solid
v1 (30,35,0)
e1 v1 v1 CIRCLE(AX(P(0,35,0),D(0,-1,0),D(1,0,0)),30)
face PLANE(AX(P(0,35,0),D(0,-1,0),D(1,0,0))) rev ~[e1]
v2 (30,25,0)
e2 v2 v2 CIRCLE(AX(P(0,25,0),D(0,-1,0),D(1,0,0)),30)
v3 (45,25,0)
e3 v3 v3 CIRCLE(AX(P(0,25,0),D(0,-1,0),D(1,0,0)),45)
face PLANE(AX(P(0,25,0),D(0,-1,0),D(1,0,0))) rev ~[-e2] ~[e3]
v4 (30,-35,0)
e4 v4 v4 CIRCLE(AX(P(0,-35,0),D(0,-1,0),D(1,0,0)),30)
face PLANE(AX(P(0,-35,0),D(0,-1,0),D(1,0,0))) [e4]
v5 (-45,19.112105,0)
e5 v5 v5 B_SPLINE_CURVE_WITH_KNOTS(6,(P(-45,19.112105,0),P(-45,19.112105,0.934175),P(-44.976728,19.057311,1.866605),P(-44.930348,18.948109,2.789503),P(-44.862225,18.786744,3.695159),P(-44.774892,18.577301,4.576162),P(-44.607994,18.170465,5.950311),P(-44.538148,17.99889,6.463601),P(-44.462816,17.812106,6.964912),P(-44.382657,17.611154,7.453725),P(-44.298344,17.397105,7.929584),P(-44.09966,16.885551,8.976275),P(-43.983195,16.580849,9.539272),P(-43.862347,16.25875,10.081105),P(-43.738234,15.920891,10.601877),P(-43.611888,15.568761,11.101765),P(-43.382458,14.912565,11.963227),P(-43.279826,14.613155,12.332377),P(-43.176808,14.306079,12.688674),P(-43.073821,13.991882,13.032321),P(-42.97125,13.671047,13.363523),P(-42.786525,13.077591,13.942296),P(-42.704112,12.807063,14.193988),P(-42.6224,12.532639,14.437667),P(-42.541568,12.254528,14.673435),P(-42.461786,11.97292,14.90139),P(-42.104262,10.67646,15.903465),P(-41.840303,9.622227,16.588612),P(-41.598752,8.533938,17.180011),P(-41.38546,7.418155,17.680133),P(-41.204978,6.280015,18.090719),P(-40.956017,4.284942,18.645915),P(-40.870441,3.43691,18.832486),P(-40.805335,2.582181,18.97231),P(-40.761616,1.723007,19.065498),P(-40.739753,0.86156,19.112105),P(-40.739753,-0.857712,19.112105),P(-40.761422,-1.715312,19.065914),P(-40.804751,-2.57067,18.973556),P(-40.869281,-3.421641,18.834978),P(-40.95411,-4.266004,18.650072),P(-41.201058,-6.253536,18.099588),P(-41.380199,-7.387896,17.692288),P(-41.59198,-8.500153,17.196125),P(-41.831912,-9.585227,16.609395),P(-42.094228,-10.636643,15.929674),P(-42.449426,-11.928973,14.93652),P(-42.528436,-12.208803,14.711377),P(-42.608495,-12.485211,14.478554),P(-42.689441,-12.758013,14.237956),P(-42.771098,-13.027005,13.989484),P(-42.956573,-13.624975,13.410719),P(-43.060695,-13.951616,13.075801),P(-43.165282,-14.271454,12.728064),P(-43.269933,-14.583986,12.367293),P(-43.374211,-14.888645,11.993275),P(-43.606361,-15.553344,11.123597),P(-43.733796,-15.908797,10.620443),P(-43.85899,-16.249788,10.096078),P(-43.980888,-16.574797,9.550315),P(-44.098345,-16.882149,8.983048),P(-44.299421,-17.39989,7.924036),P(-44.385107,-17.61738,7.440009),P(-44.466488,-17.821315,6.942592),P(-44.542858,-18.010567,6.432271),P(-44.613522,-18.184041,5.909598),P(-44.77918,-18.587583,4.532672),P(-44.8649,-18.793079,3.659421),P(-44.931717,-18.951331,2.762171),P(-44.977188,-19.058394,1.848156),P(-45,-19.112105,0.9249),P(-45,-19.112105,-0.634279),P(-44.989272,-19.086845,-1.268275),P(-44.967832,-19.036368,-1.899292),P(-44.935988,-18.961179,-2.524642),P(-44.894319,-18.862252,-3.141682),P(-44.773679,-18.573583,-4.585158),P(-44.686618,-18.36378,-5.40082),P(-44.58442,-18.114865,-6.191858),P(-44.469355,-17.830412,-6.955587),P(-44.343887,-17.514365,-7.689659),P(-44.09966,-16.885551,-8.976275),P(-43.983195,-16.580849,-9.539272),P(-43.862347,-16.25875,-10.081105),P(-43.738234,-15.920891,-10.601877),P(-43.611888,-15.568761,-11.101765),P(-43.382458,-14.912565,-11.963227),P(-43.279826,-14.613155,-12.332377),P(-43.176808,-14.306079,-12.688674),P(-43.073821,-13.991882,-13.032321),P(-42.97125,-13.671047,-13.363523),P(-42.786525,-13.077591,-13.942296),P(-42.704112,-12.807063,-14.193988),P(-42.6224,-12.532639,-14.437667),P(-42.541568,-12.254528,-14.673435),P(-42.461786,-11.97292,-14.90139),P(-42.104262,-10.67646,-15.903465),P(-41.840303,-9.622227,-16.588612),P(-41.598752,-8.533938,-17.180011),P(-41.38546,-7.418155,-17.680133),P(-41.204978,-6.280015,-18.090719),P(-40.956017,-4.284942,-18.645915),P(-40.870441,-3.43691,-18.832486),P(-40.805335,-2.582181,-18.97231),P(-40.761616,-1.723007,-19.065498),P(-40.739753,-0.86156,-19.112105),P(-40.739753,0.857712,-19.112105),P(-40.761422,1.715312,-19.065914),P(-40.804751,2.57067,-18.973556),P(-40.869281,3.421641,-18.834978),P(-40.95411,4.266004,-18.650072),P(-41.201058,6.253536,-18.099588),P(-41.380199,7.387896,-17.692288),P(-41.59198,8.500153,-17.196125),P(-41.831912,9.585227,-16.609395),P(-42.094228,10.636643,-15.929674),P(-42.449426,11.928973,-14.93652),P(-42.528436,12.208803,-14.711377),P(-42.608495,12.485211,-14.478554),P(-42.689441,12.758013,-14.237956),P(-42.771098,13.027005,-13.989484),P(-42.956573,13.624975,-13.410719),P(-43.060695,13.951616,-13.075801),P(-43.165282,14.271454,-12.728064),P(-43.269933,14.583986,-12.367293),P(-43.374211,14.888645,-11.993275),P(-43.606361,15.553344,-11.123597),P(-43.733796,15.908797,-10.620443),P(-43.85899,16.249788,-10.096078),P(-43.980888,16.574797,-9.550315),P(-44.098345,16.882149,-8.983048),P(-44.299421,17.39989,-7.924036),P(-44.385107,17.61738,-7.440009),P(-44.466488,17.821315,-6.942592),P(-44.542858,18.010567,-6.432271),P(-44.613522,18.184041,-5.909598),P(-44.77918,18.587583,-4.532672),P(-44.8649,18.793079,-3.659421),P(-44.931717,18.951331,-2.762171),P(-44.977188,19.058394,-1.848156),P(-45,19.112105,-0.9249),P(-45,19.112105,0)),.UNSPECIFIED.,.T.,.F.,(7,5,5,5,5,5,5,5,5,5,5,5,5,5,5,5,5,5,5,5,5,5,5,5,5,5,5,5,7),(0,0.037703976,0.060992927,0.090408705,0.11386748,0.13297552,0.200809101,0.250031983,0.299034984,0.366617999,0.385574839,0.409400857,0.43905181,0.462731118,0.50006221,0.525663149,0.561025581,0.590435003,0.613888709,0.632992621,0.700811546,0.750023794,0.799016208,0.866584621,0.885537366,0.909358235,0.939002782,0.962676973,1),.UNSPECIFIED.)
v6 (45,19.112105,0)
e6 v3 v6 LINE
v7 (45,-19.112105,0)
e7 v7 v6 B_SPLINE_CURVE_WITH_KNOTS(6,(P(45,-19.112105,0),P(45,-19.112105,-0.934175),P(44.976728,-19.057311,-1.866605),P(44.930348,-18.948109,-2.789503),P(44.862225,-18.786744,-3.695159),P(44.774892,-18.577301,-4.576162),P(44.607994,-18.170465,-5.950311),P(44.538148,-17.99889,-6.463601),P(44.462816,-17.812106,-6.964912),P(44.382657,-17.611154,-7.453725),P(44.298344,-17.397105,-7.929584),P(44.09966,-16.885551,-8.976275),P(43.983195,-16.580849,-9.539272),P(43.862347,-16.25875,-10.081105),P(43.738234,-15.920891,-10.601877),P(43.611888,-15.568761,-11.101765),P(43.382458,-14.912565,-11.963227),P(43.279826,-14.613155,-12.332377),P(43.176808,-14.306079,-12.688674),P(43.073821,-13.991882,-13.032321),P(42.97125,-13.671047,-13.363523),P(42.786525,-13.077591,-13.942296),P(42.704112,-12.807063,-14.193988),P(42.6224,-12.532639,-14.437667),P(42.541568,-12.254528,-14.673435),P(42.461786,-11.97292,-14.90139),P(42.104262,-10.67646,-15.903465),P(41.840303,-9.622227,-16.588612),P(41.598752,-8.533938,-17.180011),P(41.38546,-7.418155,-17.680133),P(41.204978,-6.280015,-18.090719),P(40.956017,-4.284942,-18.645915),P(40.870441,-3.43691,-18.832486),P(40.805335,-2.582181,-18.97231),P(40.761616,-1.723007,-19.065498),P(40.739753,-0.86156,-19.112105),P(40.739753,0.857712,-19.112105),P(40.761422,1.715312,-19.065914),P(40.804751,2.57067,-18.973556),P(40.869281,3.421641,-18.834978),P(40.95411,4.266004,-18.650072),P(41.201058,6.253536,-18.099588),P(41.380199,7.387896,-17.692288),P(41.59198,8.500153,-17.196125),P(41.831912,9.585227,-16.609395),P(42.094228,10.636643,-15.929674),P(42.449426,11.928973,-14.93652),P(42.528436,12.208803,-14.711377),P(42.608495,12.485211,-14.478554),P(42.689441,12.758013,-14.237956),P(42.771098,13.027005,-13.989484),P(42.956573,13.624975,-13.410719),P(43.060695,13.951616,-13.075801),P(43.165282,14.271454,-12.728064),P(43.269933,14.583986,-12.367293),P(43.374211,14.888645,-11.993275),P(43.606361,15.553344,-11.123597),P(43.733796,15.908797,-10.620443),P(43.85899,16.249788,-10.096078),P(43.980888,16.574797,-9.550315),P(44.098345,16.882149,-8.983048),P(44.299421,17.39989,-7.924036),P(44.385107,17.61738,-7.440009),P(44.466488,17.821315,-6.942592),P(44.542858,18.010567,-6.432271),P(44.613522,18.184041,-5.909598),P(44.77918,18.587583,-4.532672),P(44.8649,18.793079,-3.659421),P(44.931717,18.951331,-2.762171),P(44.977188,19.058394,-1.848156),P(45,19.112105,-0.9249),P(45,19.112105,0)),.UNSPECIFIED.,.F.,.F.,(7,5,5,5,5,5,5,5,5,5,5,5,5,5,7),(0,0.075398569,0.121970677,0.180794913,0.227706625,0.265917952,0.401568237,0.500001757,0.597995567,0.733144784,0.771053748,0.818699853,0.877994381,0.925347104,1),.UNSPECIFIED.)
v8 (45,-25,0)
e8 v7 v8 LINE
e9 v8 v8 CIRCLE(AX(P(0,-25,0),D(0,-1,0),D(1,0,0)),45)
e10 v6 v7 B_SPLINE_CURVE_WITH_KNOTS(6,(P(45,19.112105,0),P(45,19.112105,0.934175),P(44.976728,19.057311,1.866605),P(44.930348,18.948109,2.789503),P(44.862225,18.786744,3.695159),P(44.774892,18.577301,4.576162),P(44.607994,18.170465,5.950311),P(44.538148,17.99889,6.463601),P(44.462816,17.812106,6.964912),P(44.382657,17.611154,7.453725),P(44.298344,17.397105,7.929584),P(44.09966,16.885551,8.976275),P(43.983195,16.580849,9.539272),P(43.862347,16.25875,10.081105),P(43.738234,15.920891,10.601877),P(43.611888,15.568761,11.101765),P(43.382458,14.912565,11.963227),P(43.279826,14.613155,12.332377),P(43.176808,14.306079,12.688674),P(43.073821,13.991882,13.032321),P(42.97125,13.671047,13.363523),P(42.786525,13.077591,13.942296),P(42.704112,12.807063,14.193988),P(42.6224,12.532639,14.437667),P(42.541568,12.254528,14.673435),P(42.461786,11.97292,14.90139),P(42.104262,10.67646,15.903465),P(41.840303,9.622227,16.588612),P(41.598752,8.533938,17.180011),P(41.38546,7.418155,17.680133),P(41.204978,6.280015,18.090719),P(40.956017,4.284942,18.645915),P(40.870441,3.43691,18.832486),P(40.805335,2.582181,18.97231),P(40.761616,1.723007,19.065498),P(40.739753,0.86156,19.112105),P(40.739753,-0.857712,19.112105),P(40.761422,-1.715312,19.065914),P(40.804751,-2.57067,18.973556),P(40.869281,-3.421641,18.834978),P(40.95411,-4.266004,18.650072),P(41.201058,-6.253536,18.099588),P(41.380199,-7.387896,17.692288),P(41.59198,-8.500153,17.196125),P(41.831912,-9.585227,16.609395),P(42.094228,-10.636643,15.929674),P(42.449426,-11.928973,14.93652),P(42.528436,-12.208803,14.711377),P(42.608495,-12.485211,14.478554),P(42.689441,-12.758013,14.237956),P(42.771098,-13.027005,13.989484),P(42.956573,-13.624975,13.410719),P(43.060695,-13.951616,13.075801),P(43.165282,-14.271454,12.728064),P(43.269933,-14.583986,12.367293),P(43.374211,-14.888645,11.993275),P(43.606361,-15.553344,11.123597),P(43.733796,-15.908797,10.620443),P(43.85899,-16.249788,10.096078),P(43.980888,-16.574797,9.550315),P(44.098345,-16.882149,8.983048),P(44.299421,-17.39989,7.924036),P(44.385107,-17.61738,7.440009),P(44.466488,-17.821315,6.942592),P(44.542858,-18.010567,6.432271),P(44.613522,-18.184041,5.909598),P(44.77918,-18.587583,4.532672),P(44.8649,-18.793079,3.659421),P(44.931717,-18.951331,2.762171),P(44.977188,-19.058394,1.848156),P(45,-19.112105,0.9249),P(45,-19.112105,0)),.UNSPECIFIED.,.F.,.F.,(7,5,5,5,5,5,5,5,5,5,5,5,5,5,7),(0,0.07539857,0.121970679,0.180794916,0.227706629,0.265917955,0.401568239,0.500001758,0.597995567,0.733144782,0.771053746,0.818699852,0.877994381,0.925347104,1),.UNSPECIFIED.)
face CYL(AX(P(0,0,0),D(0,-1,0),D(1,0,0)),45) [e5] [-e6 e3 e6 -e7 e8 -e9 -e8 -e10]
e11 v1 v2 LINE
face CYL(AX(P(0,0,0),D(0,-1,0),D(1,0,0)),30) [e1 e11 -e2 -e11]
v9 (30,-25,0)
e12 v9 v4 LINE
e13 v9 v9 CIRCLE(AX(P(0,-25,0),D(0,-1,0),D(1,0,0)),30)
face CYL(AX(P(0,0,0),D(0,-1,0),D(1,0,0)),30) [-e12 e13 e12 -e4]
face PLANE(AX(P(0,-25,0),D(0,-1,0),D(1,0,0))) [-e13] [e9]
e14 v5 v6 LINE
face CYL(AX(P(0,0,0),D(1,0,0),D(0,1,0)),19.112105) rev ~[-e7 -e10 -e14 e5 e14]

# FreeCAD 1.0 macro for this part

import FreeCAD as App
import Part
import Sketcher
from FreeCAD import Vector
Q = App.Units.Quantity

doc = App.newDocument("Part")
params = doc.addObject("Spreadsheet::Sheet", "Params")
for row, (alias, value) in enumerate([
    ("sketch1_diameter", "60 mm"),
    ("pad1_length", "70 mm"),
    ("sketch2_diameter", "90 mm"),
    ("sketch2_diameter2", "60 mm"),
    ("pad2_length", "50 mm"),
    ("pocket1_length", "90 mm"),
], start=1):
    params.set(f"A{row}", alias)
    params.set(f"B{row}", "=" + value)
    params.setAlias(f"B{row}", alias)

body = doc.addObject("PartDesign::Body", "Body")

# Sketch on XZ plane
sketch1 = doc.addObject("Sketcher::SketchObject", "Sketch")
body.addObject(sketch1)
sketch1.AttachmentSupport = (doc.XZ_Plane, [""])
sketch1.MapMode = "FlatFace"
sketch1.addGeometry(Part.Circle(Vector(0, 0, 0), Vector(0, 0, 1), 30), False)
sketch1.addConstraint(Sketcher.Constraint("Coincident", 0, 3, -1, 1))
sketch1.addConstraint(Sketcher.Constraint("Diameter", 0, Q("60 mm")))
sketch1.setExpression("Constraints[1]", "Params.sketch1_diameter")
pad1 = doc.addObject("PartDesign::Pad", "Pad")
body.addObject(pad1)
pad1.Profile = sketch1
pad1.setExpression("Length", "Params.pad1_length")
pad1.Midplane = True

# Sketch on XZ plane
sketch2 = doc.addObject("Sketcher::SketchObject", "Sketch001")
body.addObject(sketch2)
sketch2.AttachmentSupport = (doc.XZ_Plane, [""])
sketch2.MapMode = "FlatFace"
sketch2.addGeometry(Part.Circle(Vector(0, 0, 0), Vector(0, 0, 1), 45), False)
sketch2.addGeometry(Part.Circle(Vector(0, 0, 0), Vector(0, 0, 1), 30), False)
sketch2.addConstraint(Sketcher.Constraint("Coincident", 0, 3, -1, 1))
sketch2.addConstraint(Sketcher.Constraint("Coincident", 1, 3, -1, 1))
sketch2.addConstraint(Sketcher.Constraint("Diameter", 0, Q("90 mm")))
sketch2.addConstraint(Sketcher.Constraint("Diameter", 1, Q("60 mm")))
sketch2.setExpression("Constraints[2]", "Params.sketch2_diameter")
sketch2.setExpression("Constraints[3]", "Params.sketch2_diameter2")
pad2 = doc.addObject("PartDesign::Pad", "Pad001")
body.addObject(pad2)
pad2.Profile = sketch2
pad2.setExpression("Length", "Params.pad2_length")
pad2.Midplane = True

# Sketch on YZ plane
sketch3 = doc.addObject("Sketcher::SketchObject", "Sketch002")
body.addObject(sketch3)
sketch3.AttachmentSupport = (doc.YZ_Plane, [""])
sketch3.MapMode = "FlatFace"
sketch3.addGeometry(Part.Circle(Vector(0, 0, 0), Vector(0, 0, 1), 19.112105), False)
sketch3.addConstraint(Sketcher.Constraint("Coincident", 0, 3, -1, 1))
sketch3.addConstraint(Sketcher.Constraint("Diameter", 0, Q("38.22421 mm")))
pocket1 = doc.addObject("PartDesign::Pocket", "Pocket")
body.addObject(pocket1)
pocket1.Profile = sketch3
pocket1.setExpression("Length", "Params.pocket1_length")
pocket1.Midplane = True

doc.recompute()
